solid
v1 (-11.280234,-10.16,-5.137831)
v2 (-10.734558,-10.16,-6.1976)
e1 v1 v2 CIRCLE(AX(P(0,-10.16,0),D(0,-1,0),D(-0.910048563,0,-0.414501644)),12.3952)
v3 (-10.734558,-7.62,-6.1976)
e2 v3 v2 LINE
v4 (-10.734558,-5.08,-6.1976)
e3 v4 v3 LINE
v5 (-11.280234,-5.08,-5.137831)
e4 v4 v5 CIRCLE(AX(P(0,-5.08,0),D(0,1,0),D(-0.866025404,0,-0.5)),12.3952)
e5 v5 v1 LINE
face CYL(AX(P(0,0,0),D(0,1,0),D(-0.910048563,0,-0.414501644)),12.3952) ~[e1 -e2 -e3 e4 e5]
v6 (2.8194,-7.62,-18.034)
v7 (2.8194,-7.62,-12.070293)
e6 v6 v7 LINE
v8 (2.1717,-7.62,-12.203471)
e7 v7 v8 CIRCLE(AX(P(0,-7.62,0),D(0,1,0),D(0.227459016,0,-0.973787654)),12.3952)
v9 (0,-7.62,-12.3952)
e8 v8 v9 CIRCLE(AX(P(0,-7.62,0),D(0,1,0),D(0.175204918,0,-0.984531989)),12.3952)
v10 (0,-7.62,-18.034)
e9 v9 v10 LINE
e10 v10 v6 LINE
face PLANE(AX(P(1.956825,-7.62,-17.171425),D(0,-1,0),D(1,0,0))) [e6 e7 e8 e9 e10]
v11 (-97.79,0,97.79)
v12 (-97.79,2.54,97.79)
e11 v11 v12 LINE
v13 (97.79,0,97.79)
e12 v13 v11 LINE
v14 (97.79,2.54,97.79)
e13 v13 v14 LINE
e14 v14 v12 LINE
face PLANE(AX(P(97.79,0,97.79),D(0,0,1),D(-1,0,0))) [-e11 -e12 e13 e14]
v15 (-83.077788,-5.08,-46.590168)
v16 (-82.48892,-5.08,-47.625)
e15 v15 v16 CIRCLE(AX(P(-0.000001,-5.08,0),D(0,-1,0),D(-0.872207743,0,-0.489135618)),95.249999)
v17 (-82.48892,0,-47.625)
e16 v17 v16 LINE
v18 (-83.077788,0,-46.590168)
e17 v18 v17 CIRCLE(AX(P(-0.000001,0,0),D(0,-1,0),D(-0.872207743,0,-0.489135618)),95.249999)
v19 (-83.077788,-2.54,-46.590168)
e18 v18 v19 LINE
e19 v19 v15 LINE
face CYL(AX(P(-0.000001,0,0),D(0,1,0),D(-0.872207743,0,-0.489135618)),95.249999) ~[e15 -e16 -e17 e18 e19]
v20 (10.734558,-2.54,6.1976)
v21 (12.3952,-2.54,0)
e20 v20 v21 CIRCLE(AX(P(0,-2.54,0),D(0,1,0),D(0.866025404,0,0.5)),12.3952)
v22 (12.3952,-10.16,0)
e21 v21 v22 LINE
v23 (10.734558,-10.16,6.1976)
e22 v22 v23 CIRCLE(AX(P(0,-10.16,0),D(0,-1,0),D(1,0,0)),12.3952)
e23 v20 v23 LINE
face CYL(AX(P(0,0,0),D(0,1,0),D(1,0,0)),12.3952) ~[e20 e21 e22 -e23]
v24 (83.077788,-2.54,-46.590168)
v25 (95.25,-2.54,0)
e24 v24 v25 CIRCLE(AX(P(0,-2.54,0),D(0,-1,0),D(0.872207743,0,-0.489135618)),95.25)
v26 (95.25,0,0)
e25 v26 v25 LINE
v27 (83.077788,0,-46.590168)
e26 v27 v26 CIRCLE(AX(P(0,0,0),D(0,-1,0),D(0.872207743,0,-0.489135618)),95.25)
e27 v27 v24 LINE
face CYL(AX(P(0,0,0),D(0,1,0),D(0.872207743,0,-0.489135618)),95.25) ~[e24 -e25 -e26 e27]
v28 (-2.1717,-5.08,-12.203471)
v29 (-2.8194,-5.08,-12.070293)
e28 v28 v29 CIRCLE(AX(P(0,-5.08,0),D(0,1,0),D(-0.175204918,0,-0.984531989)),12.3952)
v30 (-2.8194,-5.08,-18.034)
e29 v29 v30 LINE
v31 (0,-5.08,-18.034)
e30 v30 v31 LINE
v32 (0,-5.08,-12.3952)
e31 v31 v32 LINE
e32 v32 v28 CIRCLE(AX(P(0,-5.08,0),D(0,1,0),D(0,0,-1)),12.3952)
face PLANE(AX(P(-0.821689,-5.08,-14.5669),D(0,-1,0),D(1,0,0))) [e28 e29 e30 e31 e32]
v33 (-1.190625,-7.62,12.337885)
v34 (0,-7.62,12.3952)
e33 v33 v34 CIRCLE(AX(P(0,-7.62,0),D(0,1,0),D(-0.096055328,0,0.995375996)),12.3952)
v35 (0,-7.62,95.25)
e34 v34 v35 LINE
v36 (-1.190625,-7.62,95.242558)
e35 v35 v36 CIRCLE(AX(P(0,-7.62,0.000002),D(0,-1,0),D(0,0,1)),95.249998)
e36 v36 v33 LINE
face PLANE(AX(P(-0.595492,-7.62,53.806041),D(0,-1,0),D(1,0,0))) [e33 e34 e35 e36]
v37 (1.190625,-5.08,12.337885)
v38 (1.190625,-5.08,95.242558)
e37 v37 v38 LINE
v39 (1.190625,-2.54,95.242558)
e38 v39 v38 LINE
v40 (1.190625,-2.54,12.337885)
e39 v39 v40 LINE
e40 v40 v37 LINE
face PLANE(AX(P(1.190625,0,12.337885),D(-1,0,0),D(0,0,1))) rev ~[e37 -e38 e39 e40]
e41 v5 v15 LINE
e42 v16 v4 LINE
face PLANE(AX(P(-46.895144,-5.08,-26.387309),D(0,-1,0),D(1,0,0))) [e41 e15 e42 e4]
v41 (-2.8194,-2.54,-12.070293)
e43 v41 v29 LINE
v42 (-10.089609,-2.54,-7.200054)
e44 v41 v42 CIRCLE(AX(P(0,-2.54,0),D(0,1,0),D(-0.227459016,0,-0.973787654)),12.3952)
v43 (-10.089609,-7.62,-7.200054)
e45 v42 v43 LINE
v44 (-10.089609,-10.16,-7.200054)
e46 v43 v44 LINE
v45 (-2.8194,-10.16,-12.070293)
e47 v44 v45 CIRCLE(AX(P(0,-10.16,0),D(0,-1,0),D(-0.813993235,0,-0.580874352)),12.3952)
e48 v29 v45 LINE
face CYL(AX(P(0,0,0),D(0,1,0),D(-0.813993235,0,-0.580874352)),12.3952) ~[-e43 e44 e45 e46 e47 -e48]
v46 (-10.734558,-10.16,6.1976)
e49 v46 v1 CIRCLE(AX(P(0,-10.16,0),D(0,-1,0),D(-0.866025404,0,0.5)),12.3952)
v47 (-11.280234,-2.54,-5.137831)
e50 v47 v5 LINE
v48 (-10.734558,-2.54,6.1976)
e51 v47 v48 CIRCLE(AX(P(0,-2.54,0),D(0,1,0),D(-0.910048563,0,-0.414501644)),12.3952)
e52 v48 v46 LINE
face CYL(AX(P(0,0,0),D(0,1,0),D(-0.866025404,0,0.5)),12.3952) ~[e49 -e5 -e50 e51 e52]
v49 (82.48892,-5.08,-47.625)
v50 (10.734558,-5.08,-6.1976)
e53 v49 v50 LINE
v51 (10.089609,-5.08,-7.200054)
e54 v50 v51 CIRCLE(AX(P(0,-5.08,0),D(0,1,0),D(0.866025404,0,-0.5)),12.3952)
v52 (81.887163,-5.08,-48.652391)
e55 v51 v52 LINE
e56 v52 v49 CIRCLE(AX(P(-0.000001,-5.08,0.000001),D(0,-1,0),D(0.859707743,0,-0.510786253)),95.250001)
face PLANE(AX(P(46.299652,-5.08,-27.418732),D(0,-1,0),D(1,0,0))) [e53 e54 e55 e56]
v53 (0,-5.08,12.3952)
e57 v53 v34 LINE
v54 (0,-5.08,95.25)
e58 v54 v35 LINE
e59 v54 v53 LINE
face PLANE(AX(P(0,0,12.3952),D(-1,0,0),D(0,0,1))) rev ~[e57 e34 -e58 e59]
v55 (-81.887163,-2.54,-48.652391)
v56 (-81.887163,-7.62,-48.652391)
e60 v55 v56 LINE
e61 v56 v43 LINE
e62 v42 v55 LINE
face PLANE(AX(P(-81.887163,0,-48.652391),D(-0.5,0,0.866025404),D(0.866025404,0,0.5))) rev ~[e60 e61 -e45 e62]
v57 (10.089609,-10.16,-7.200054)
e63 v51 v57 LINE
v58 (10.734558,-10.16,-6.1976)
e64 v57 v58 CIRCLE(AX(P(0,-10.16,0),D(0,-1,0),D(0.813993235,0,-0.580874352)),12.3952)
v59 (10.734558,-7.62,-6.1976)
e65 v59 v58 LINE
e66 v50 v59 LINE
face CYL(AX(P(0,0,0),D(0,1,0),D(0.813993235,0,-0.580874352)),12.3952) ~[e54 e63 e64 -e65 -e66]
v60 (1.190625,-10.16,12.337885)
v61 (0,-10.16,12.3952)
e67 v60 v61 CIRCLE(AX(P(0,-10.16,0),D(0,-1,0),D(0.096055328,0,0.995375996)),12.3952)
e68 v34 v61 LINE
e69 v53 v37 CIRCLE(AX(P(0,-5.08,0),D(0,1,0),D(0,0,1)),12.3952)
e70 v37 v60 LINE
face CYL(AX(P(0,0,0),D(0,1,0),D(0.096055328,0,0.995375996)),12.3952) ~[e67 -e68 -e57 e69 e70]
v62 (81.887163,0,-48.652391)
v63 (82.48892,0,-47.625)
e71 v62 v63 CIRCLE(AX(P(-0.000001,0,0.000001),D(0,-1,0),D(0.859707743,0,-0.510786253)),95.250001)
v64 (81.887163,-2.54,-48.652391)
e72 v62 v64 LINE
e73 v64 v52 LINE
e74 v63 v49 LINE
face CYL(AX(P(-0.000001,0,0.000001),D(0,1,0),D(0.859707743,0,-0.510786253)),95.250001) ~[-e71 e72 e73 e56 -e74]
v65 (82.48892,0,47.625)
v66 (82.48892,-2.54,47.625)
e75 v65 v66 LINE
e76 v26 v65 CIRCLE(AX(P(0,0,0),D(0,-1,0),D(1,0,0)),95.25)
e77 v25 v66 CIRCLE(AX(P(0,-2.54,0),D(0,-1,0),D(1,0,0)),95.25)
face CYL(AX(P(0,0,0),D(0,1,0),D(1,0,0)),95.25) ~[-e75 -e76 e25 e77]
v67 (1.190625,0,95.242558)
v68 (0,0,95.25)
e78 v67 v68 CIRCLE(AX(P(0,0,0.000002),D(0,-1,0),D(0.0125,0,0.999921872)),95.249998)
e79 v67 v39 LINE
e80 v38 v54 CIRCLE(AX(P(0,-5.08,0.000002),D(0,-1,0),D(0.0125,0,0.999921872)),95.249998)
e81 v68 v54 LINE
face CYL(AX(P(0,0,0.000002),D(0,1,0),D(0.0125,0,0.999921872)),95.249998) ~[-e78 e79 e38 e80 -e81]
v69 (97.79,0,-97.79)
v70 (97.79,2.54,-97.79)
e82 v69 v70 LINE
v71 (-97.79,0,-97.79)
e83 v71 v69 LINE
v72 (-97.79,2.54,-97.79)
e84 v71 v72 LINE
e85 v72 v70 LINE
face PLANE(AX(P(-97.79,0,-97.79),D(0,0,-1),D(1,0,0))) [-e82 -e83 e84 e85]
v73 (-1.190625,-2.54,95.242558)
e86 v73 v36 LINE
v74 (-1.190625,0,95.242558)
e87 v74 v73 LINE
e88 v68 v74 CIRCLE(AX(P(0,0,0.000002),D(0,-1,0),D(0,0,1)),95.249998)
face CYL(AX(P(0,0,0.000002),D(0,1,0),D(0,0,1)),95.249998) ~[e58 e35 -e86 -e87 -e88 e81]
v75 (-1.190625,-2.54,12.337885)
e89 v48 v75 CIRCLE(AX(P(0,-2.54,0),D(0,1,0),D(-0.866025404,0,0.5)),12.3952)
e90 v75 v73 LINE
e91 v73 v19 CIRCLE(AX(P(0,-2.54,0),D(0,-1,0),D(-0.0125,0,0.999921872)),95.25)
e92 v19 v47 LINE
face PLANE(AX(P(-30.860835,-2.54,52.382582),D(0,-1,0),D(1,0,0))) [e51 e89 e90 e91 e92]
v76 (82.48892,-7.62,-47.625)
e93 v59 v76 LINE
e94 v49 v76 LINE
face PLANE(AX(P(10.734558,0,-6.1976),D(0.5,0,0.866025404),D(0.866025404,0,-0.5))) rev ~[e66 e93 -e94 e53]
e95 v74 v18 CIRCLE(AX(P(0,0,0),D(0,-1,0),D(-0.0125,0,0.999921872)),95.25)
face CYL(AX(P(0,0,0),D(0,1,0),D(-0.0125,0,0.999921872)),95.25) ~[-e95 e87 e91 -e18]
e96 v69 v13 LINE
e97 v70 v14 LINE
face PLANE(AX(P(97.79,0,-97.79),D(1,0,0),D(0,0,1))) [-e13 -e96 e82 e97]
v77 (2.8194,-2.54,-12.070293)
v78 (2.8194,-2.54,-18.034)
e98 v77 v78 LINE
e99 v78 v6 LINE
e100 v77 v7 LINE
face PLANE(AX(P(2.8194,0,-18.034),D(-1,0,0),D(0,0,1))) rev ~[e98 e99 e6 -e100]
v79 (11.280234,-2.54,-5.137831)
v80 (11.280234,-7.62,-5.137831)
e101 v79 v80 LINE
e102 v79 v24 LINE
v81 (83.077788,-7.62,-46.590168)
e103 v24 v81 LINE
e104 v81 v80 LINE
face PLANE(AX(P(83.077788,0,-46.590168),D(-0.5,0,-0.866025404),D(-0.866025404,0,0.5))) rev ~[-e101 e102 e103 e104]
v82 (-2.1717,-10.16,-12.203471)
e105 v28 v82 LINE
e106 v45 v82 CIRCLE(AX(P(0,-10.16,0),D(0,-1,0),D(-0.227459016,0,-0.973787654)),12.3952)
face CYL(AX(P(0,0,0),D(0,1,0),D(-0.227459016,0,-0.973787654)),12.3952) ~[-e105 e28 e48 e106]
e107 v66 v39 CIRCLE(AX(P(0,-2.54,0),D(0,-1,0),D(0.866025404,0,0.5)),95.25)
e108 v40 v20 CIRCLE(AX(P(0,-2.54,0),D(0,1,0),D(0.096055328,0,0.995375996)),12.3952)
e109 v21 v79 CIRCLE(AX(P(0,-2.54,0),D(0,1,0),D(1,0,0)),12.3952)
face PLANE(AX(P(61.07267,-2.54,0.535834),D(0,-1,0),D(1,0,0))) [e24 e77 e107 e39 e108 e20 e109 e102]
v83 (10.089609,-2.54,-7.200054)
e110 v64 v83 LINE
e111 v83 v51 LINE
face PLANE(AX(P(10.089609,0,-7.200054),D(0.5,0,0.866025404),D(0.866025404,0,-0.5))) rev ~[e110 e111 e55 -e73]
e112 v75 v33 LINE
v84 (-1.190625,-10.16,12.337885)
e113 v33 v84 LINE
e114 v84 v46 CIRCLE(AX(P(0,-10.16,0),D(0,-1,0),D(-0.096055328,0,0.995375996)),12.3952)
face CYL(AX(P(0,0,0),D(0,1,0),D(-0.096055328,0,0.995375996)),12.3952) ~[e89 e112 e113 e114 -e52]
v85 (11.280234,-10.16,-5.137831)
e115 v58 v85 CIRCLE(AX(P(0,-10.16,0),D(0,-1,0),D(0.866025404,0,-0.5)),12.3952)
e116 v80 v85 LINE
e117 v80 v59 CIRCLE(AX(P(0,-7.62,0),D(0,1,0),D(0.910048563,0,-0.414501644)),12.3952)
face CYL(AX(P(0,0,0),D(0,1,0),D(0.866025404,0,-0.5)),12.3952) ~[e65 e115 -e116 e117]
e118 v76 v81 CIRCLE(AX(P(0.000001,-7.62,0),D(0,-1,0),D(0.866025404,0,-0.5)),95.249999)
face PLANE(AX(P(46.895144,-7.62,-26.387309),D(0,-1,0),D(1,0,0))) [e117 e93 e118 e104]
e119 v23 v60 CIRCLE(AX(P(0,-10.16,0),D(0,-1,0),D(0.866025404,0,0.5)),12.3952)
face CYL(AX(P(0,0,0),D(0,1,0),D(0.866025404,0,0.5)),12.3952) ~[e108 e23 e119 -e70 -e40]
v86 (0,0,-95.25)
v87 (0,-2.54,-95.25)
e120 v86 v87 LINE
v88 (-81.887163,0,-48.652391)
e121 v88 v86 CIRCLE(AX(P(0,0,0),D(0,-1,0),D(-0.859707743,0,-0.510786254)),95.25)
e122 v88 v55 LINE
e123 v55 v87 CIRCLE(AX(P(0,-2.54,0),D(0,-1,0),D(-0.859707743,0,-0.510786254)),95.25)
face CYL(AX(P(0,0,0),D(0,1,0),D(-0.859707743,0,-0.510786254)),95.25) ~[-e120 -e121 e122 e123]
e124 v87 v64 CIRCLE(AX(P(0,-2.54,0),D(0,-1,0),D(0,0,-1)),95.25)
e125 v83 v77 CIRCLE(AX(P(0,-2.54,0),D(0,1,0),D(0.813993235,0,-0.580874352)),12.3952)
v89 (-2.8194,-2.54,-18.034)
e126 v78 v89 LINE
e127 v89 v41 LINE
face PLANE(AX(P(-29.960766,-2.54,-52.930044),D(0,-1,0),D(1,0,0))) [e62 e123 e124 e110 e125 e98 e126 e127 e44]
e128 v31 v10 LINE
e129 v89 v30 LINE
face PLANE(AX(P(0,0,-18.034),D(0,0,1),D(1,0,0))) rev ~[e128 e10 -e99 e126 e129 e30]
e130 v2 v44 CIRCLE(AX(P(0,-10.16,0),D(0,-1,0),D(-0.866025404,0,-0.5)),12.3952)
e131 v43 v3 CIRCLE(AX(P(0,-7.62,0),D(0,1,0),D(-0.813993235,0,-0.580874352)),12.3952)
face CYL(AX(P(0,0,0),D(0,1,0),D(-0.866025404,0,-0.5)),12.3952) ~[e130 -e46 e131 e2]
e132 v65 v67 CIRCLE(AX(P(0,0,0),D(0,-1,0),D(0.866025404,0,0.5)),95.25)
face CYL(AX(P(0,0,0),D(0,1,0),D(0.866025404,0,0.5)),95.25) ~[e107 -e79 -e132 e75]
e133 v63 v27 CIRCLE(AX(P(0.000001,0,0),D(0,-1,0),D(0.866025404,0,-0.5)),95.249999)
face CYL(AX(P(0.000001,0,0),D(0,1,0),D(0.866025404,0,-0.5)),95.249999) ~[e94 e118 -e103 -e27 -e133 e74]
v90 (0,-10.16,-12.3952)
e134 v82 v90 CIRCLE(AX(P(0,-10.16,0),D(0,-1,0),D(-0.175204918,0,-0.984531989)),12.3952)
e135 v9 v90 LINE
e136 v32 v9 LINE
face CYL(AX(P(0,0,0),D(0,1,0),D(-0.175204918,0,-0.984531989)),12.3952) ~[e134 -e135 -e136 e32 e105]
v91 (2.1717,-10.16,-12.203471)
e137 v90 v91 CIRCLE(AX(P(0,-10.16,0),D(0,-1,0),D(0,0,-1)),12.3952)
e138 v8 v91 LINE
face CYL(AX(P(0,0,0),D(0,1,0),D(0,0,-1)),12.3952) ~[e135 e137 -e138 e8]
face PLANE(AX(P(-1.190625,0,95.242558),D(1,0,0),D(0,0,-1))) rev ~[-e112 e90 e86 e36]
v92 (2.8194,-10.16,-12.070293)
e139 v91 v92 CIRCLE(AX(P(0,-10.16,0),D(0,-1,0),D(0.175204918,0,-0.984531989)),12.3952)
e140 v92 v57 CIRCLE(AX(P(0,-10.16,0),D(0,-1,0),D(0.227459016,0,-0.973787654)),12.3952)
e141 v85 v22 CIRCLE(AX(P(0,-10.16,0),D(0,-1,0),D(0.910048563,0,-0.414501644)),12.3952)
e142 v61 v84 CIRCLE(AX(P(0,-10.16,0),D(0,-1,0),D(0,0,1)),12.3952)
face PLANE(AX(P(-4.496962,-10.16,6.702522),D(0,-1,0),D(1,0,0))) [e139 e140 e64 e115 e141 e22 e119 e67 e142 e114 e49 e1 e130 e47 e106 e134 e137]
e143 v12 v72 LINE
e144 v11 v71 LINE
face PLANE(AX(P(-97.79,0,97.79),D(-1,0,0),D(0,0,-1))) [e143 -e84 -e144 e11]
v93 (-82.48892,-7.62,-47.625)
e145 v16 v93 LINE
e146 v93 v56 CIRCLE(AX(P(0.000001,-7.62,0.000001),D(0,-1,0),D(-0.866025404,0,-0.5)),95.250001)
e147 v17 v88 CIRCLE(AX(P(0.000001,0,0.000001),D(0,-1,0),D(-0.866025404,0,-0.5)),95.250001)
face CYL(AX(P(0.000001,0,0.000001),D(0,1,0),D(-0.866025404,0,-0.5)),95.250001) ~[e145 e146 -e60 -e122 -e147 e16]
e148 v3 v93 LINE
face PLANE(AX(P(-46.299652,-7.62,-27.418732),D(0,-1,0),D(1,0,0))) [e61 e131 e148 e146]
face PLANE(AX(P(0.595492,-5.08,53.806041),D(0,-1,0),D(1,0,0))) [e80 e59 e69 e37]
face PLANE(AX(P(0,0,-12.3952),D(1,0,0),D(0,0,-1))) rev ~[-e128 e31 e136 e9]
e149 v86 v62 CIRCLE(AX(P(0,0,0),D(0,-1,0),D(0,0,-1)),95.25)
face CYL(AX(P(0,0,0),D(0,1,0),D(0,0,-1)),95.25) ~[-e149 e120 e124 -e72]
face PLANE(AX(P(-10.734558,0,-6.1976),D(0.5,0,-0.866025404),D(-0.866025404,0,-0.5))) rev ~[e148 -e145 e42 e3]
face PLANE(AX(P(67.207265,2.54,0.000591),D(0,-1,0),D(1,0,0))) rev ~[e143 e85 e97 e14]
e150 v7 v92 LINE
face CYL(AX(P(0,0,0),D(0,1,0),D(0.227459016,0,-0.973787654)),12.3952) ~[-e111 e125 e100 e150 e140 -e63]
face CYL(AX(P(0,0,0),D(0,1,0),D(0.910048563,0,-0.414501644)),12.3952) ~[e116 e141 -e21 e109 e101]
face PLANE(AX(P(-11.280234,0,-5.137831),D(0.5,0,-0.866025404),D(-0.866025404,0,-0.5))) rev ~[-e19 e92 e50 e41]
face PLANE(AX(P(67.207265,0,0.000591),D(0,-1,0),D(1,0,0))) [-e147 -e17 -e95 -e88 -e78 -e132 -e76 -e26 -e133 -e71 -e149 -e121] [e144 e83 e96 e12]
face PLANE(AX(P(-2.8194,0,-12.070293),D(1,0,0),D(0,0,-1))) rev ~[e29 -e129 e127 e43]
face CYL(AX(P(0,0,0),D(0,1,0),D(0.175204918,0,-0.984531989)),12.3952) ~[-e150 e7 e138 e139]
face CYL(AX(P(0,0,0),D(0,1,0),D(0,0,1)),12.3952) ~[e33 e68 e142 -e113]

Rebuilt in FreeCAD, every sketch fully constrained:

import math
import FreeCAD as App
import Part
import Sketcher
from FreeCAD import Vector
Q = App.Units.Quantity


def add_polygon(sketch, points):
    """Adds a closed chain of lines whose ends are joined by coincident constraints."""
    first, n = sketch.GeometryCount, len(points)
    for a, b in zip(points, points[1:] + points[:1]):
        sketch.addGeometry(Part.LineSegment(App.Vector(*a, 0), App.Vector(*b, 0)), False)
    for i in range(n):
        sketch.addConstraint(Sketcher.Constraint("Coincident", first + i, 2, first + (i + 1) % n, 1))

doc = App.newDocument("Part")
body = doc.addObject("PartDesign::Body", "Body")

sketch1 = body.newObject("Sketcher::SketchObject", "Sketch")
sketch1.AttachmentSupport = (doc.getObject("XZ_Plane"), [""])
sketch1.MapMode = "FlatFace"
add_polygon(sketch1, [(98, -98), (98, 98), (-98, 98), (-98, -98)])
sketch1.addConstraint([
    Sketcher.Constraint("Vertical", 0),
    Sketcher.Constraint("Horizontal", 1),
    Sketcher.Constraint("Vertical", 2),
    Sketcher.Constraint("Horizontal", 3),
    Sketcher.Constraint("Symmetric", 0, 2, 2, 2, -1, 1),
    Sketcher.Constraint("Equal", 3, 0),
    Sketcher.Constraint("DistanceX", 1, 2, 1, 1, Q("7.7 in")),
])
pad1 = body.newObject("PartDesign::Pad", "Pad")
pad1.Profile = sketch1
pad1.Length = Q("0.1 in")
pad1.Reversed = True

sketch2 = body.newObject("Sketcher::SketchObject", "Sketch001")
sketch2.AttachmentSupport = (doc.getObject("XZ_Plane"), [""])
sketch2.MapMode = "FlatFace"
sketch2.addGeometry([
    Part.LineSegment(Vector(1.2, 12.3, 0), Vector(1.2, 95.2, 0)),
    Part.ArcOfCircle(Part.Circle(Vector(0, 0, 0), Vector(0, 0, 1), 95.2), math.radians(89.28), math.radians(90)),
    Part.LineSegment(Vector(0, 95.2, 0), Vector(0, 12.4, 0)),
    Part.ArcOfCircle(Part.Circle(Vector(0, 0, 0), Vector(0, 0, 1), 12.4), math.radians(84.49), math.radians(90)),
    Part.LineSegment(Vector(-11.3, -5.1, 0), Vector(-83.1, -46.6, 0)),
    Part.ArcOfCircle(Part.Circle(Vector(0, 0, 0), Vector(0, 0, 1), 95.2), math.radians(-150.72), math.radians(-150)),
    Part.LineSegment(Vector(-82.5, -47.6, 0), Vector(-10.7, -6.2, 0)),
    Part.ArcOfCircle(Part.Circle(Vector(0, 0, 0), Vector(0, 0, 1), 12.4), math.radians(-155.51), math.radians(-150)),
    Part.ArcOfCircle(Part.Circle(Vector(0, 0, 0), Vector(0, 0, 1), 95.3), math.radians(-30.72), math.radians(-30)),
    Part.LineSegment(Vector(82.5, -47.6, 0), Vector(10.7, -6.2, 0)),
    Part.ArcOfCircle(Part.Circle(Vector(0, 0, 0), Vector(0, 0, 1), 12.4), math.radians(-35.51), math.radians(-30)),
    Part.LineSegment(Vector(10.1, -7.2, 0), Vector(81.9, -48.7, 0)),
    Part.LineSegment(Vector(0, -18, 0), Vector(0, -12.4, 0)),
    Part.ArcOfCircle(Part.Circle(Vector(0, 0, 0), Vector(0, 0, 1), 12.4), math.radians(-100.09), math.radians(-90)),
    Part.ArcOfCircle(Part.Circle(Vector(0, 0, 0), Vector(0, 0, 1), 12.4), math.radians(-103.15), math.radians(-100.09)),
    Part.LineSegment(Vector(-2.8, -12.1, 0), Vector(-2.8, -18, 0)),
    Part.LineSegment(Vector(-2.8, -18, 0), Vector(0, -18, 0)),
], False)
sketch2.addConstraint([
    Sketcher.Constraint("Coincident", 0, 2, 1, 1),
    Sketcher.Constraint("Coincident", 1, 2, 2, 1),
    Sketcher.Constraint("Coincident", 2, 2, 3, 2),
    Sketcher.Constraint("Coincident", 3, 1, 0, 1),
    Sketcher.Constraint("Coincident", 4, 2, 5, 1),
    Sketcher.Constraint("Coincident", 5, 2, 6, 1),
    Sketcher.Constraint("Coincident", 6, 2, 7, 2),
    Sketcher.Constraint("Coincident", 7, 1, 4, 1),
    Sketcher.Constraint("Coincident", 8, 2, 9, 1),
    Sketcher.Constraint("Coincident", 9, 2, 10, 2),
    Sketcher.Constraint("Coincident", 10, 1, 11, 1),
    Sketcher.Constraint("Coincident", 11, 2, 8, 1),
    Sketcher.Constraint("Coincident", 12, 2, 13, 2),
    Sketcher.Constraint("Tangent", 13, 1, 14, 2),
    Sketcher.Constraint("Coincident", 14, 1, 15, 1),
    Sketcher.Constraint("Coincident", 15, 2, 16, 1),
    Sketcher.Constraint("Coincident", 16, 2, 12, 1),
    Sketcher.Constraint("Vertical", 0),
    Sketcher.Constraint("Vertical", 2),
    Sketcher.Constraint("Vertical", 12),
    Sketcher.Constraint("Vertical", 15),
    Sketcher.Constraint("Horizontal", 16),
    Sketcher.Constraint("Coincident", 1, 3, -1, 1),
    Sketcher.Constraint("Coincident", 3, 3, -1, 1),
    Sketcher.Constraint("Coincident", 5, 3, -1, 1),
    Sketcher.Constraint("Coincident", 7, 3, -1, 1),
    Sketcher.Constraint("Coincident", 8, 3, -1, 1),
    Sketcher.Constraint("Coincident", 10, 3, -1, 1),
    Sketcher.Constraint("Coincident", 13, 3, -1, 1),
    Sketcher.Constraint("Equal", 1, 5),
    Sketcher.Constraint("Equal", 3, 7),
    Sketcher.Constraint("Equal", 7, 10),
    Sketcher.Constraint("Equal", 10, 13),
    Sketcher.Constraint("Equal", 13, 14),
    Sketcher.Constraint("Symmetric", 5, 2, 8, 2, -2),
    Sketcher.Constraint("PointOnObject", 1, 2, -2),
    Sketcher.Constraint("PointOnObject", 12, 2, -2),
    Sketcher.Constraint("Parallel", 4, 6),
    Sketcher.Constraint("Parallel", 9, 11),
    Sketcher.Constraint("Horizontal", 6, 2, 9, 2),
    Sketcher.Constraint("Equal", 4, 11),
    Sketcher.Constraint("Radius", 1, Q("3.7499999 in")),
    Sketcher.Constraint("Angle", 4, Q("-150 deg")),
    Sketcher.Constraint("Radius", 3, Q("0.488 in")),
    Sketcher.Constraint("DistanceX", 16, 1, 16, 2, Q("0.111 in")),
    Sketcher.Constraint("DistanceY", 12, 1, 12, 2, Q("0.222 in")),
    Sketcher.Constraint("DistanceX", -1, 1, 0, 2, Q("0.046875 in")),
    Sketcher.Constraint("DistanceY", 5, 2, -1, 1, Q("1.875 in")),
    Sketcher.Constraint("DistanceX", 13, 1, -1, 1, Q("0.0855 in")),
    Sketcher.Constraint("DistanceY", 7, 1, -1, 1, Q("5.137831 mm")),
])
pad2 = body.newObject("PartDesign::Pad", "Pad001")
pad2.Profile = sketch2
pad2.Length = Q("0.2 in")

sketch3 = body.newObject("Sketcher::SketchObject", "Sketch002")
sketch3.AttachmentSupport = (doc.getObject("XZ_Plane"), [""])
sketch3.MapMode = "FlatFace"
sketch3.addGeometry([
    Part.ArcOfCircle(Part.Circle(Vector(0, 0, 0), Vector(0, 0, 1), 95), math.radians(-149), math.radians(-90)),
    Part.ArcOfCircle(Part.Circle(Vector(0, 0, 0), Vector(0, 0, 1), 95), math.radians(-90), math.radians(-31)),
    Part.LineSegment(Vector(82, -49, 0), Vector(10, -7, 0)),
    Part.ArcOfCircle(Part.Circle(Vector(0, 0, 0), Vector(0, 0, 1), 12), math.radians(-77), math.radians(-36)),
    Part.LineSegment(Vector(3, -12, 0), Vector(3, -18, 0)),
    Part.LineSegment(Vector(3, -18, 0), Vector(-3, -18, 0)),
    Part.LineSegment(Vector(-3, -18, 0), Vector(-3, -12, 0)),
    Part.ArcOfCircle(Part.Circle(Vector(0, 0, 0), Vector(0, 0, 1), 12), math.radians(-144), math.radians(-103)),
    Part.LineSegment(Vector(-10, -7, 0), Vector(-82, -49, 0)),
    Part.ArcOfCircle(Part.Circle(Vector(0, 0, 0), Vector(0, 0, 1), 95), math.radians(-29), math.radians(0)),
    Part.ArcOfCircle(Part.Circle(Vector(0, 0, 0), Vector(0, 0, 1), 95), math.radians(0), math.radians(30)),
    Part.ArcOfCircle(Part.Circle(Vector(0, 0, 0), Vector(0, 0, 1), 95), math.radians(30), math.radians(89)),
    Part.LineSegment(Vector(1, 95, 0), Vector(1, 12, 0)),
    Part.ArcOfCircle(Part.Circle(Vector(0, 0, 0), Vector(0, 0, 1), 12), math.radians(30), math.radians(84)),
    Part.ArcOfCircle(Part.Circle(Vector(0, 0, 0), Vector(0, 0, 1), 12), math.radians(0), math.radians(30)),
    Part.ArcOfCircle(Part.Circle(Vector(0, 0, 0), Vector(0, 0, 1), 12), math.radians(-24), math.radians(0)),
    Part.LineSegment(Vector(11, -5, 0), Vector(83, -47, 0)),
    Part.LineSegment(Vector(-1, 12, 0), Vector(-1, 95, 0)),
    Part.ArcOfCircle(Part.Circle(Vector(0, 0, 0), Vector(0, 0, 1), 95), math.radians(91), math.radians(209)),
    Part.LineSegment(Vector(-83, -47, 0), Vector(-11, -5, 0)),
    Part.ArcOfCircle(Part.Circle(Vector(0, 0, 0), Vector(0, 0, 1), 12), math.radians(150), math.radians(204)),
    Part.ArcOfCircle(Part.Circle(Vector(0, 0, 0), Vector(0, 0, 1), 12), math.radians(96), math.radians(150)),
], False)
sketch3.addConstraint([
    Sketcher.Constraint("Tangent", 0, 2, 1, 1),
    Sketcher.Constraint("Coincident", 1, 2, 2, 1),
    Sketcher.Constraint("Coincident", 2, 2, 3, 2),
    Sketcher.Constraint("Coincident", 3, 1, 4, 1),
    Sketcher.Constraint("Coincident", 4, 2, 5, 1),
    Sketcher.Constraint("Coincident", 5, 2, 6, 1),
    Sketcher.Constraint("Coincident", 6, 2, 7, 2),
    Sketcher.Constraint("Coincident", 7, 1, 8, 1),
    Sketcher.Constraint("Coincident", 8, 2, 0, 1),
    Sketcher.Constraint("Tangent", 9, 2, 10, 1),
    Sketcher.Constraint("Tangent", 10, 2, 11, 1),
    Sketcher.Constraint("Coincident", 11, 2, 12, 1),
    Sketcher.Constraint("Coincident", 12, 2, 13, 2),
    Sketcher.Constraint("Tangent", 13, 1, 14, 2),
    Sketcher.Constraint("Tangent", 14, 1, 15, 2),
    Sketcher.Constraint("Coincident", 15, 1, 16, 1),
    Sketcher.Constraint("Coincident", 16, 2, 9, 1),
    Sketcher.Constraint("Coincident", 17, 2, 18, 1),
    Sketcher.Constraint("Coincident", 18, 2, 19, 1),
    Sketcher.Constraint("Coincident", 19, 2, 20, 2),
    Sketcher.Constraint("Tangent", 20, 1, 21, 2),
    Sketcher.Constraint("Coincident", 21, 1, 17, 1),
    Sketcher.Constraint("Vertical", 4),
    Sketcher.Constraint("Horizontal", 5),
    Sketcher.Constraint("Vertical", 6),
    Sketcher.Constraint("Vertical", 12),
    Sketcher.Constraint("Vertical", 17),
    Sketcher.Constraint("Coincident", 0, 3, -1, 1),
    Sketcher.Constraint("Coincident", 3, 3, -1, 1),
    Sketcher.Constraint("Coincident", 7, 3, -1, 1),
    Sketcher.Constraint("Coincident", 9, 3, -1, 1),
    Sketcher.Constraint("Coincident", 11, 3, -1, 1),
    Sketcher.Constraint("Coincident", 13, 3, -1, 1),
    Sketcher.Constraint("Coincident", 15, 3, -1, 1),
    Sketcher.Constraint("Coincident", 18, 3, -1, 1),
    Sketcher.Constraint("Coincident", 20, 3, -1, 1),
    Sketcher.Constraint("Equal", 0, 1),
    Sketcher.Constraint("Equal", 3, 7),
    Sketcher.Constraint("Equal", 1, 9),
    Sketcher.Constraint("Equal", 7, 13),
    Sketcher.Constraint("Equal", 11, 18),
    Sketcher.Constraint("Equal", 15, 20),
    Sketcher.Constraint("Equal", 20, 21),
    Sketcher.Constraint("PointOnObject", 0, 2, -2),
    Sketcher.Constraint("PointOnObject", 9, 2, -1),
    Sketcher.Constraint("PointOnObject", 14, 1, -1),
    Sketcher.Constraint("Parallel", 2, 16),
    Sketcher.Constraint("Parallel", 8, 19),
    Sketcher.Constraint("Horizontal", 3, 1, 6, 2),
    Sketcher.Constraint("Horizontal", 2, 2, 7, 1),
    Sketcher.Constraint("Horizontal", 1, 2, 8, 2),
    Sketcher.Constraint("Horizontal", 11, 2, 17, 2),
    Sketcher.Constraint("Horizontal", 16, 2, 18, 2),
    Sketcher.Constraint("Horizontal", 13, 1, 20, 1),
    Sketcher.Constraint("Equal", 8, 16),
    Sketcher.Constraint("Radius", 0, Q("3.75 in")),
    Sketcher.Constraint("Angle", 2, Q("150 deg")),
    Sketcher.Constraint("Radius", 3, Q("0.488 in")),
    Sketcher.Constraint("DistanceX", 5, 2, 5, 1, Q("0.222 in")),
    Sketcher.Constraint("DistanceY", 4, 2, -1, 1, Q("0.71 in")),
    Sketcher.Constraint("DistanceY", -1, 1, 10, 2, Q("1.875 in")),
    Sketcher.Constraint("DistanceX", -1, 1, 11, 2, Q("0.046875 in")),
    Sketcher.Constraint("DistanceY", -1, 1, 13, 1, Q("0.244 in")),
    Sketcher.Constraint("DistanceX", 2, 2, 15, 1, Q("0.046875 in")),
])
pad3 = body.newObject("PartDesign::Pad", "Pad002")
pad3.Profile = sketch3
pad3.Length = Q("0.1 in")

sketch4 = body.newObject("Sketcher::SketchObject", "Sketch003")
sketch4.AttachmentSupport = (doc.getObject("XZ_Plane"), [""])
sketch4.MapMode = "FlatFace"
sketch4.addGeometry([
    Part.ArcOfCircle(Part.Circle(Vector(0, 0, 0), Vector(0, 0, 1), 95.3), math.radians(-150), math.radians(-149.28)),
    Part.LineSegment(Vector(-81.9, -48.7, 0), Vector(-10.1, -7.2, 0)),
    Part.ArcOfCircle(Part.Circle(Vector(0, 0, 0), Vector(0, 0, 1), 12.4), math.radians(-150), math.radians(-144.49)),
    Part.LineSegment(Vector(-10.7, -6.2, 0), Vector(-82.5, -47.6, 0)),
    Part.ArcOfCircle(Part.Circle(Vector(0, 0, 0), Vector(0, 0, 1), 95.2), math.radians(-30), math.radians(-29.28)),
    Part.LineSegment(Vector(83.1, -46.6, 0), Vector(11.3, -5.1, 0)),
    Part.ArcOfCircle(Part.Circle(Vector(0, 0, 0), Vector(0, 0, 1), 12.4), math.radians(-30), math.radians(-24.49)),
    Part.LineSegment(Vector(10.7, -6.2, 0), Vector(82.5, -47.6, 0)),
    Part.LineSegment(Vector(0, 12.4, 0), Vector(0, 95.2, 0)),
    Part.ArcOfCircle(Part.Circle(Vector(0, 0, 0), Vector(0, 0, 1), 95.2), math.radians(90), math.radians(90.72)),
    Part.LineSegment(Vector(-1.2, 95.2, 0), Vector(-1.2, 12.3, 0)),
    Part.ArcOfCircle(Part.Circle(Vector(0, 0, 0), Vector(0, 0, 1), 12.4), math.radians(90), math.radians(95.51)),
    Part.LineSegment(Vector(0, -18, 0), Vector(2.8, -18, 0)),
    Part.LineSegment(Vector(2.8, -18, 0), Vector(2.8, -12.1, 0)),
    Part.ArcOfCircle(Part.Circle(Vector(0, 0, 0), Vector(0, 0, 1), 12.4), math.radians(-79.91), math.radians(-76.85)),
    Part.ArcOfCircle(Part.Circle(Vector(0, 0, 0), Vector(0, 0, 1), 12.4), math.radians(-90), math.radians(-79.91)),
    Part.LineSegment(Vector(0, -12.4, 0), Vector(0, -18, 0)),
], False)
sketch4.addConstraint([
    Sketcher.Constraint("Coincident", 0, 2, 1, 1),
    Sketcher.Constraint("Coincident", 1, 2, 2, 2),
    Sketcher.Constraint("Coincident", 2, 1, 3, 1),
    Sketcher.Constraint("Coincident", 3, 2, 0, 1),
    Sketcher.Constraint("Coincident", 4, 2, 5, 1),
    Sketcher.Constraint("Coincident", 5, 2, 6, 2),
    Sketcher.Constraint("Coincident", 6, 1, 7, 1),
    Sketcher.Constraint("Coincident", 7, 2, 4, 1),
    Sketcher.Constraint("Coincident", 8, 2, 9, 1),
    Sketcher.Constraint("Coincident", 9, 2, 10, 1),
    Sketcher.Constraint("Coincident", 10, 2, 11, 2),
    Sketcher.Constraint("Coincident", 11, 1, 8, 1),
    Sketcher.Constraint("Coincident", 12, 2, 13, 1),
    Sketcher.Constraint("Coincident", 13, 2, 14, 2),
    Sketcher.Constraint("Tangent", 14, 1, 15, 2),
    Sketcher.Constraint("Coincident", 15, 1, 16, 1),
    Sketcher.Constraint("Coincident", 16, 2, 12, 1),
    Sketcher.Constraint("Vertical", 8),
    Sketcher.Constraint("Vertical", 10),
    Sketcher.Constraint("Horizontal", 12),
    Sketcher.Constraint("Vertical", 13),
    Sketcher.Constraint("Vertical", 16),
    Sketcher.Constraint("Coincident", 0, 3, -1, 1),
    Sketcher.Constraint("Coincident", 2, 3, -1, 1),
    Sketcher.Constraint("Coincident", 4, 3, -1, 1),
    Sketcher.Constraint("Coincident", 6, 3, -1, 1),
    Sketcher.Constraint("Coincident", 9, 3, -1, 1),
    Sketcher.Constraint("Coincident", 11, 3, -1, 1),
    Sketcher.Constraint("Coincident", 14, 3, -1, 1),
    Sketcher.Constraint("Equal", 2, 6),
    Sketcher.Constraint("Equal", 4, 9),
    Sketcher.Constraint("Equal", 6, 11),
    Sketcher.Constraint("Equal", 11, 14),
    Sketcher.Constraint("Equal", 14, 15),
    Sketcher.Constraint("Symmetric", 3, 2, 7, 2, -2),
    Sketcher.Constraint("PointOnObject", 8, 2, -2),
    Sketcher.Constraint("PointOnObject", 15, 1, -2),
    Sketcher.Constraint("Parallel", 1, 3),
    Sketcher.Constraint("Parallel", 5, 7),
    Sketcher.Constraint("Horizontal", 2, 1, 6, 1),
    Sketcher.Constraint("Equal", 1, 5),
    Sketcher.Constraint("Radius", 0, Q("3.7500001 in")),
    Sketcher.Constraint("Angle", 1, Q("30 deg")),
    Sketcher.Constraint("Radius", 2, Q("0.488 in")),
    Sketcher.Constraint("DistanceX", 12, 1, 12, 2, Q("0.111 in")),
    Sketcher.Constraint("DistanceY", 16, 2, 16, 1, Q("0.222 in")),
    Sketcher.Constraint("DistanceY", 2, 1, -1, 1, Q("0.244 in")),
    Sketcher.Constraint("DistanceX", 9, 2, -1, 1, Q("0.046875 in")),
    Sketcher.Constraint("DistanceX", -1, 1, 14, 1, Q("0.0855 in")),
    Sketcher.Constraint("DistanceY", 0, 2, -1, 1, Q("48.652391 mm")),
])
pad4 = body.newObject("PartDesign::Pad", "Pad003")
pad4.Profile = sketch4
pad4.Length = Q("0.3 in")

sketch5 = body.newObject("Sketcher::SketchObject", "Sketch004")
sketch5.AttachmentSupport = (doc.getObject("XZ_Plane"), [""])
sketch5.MapMode = "FlatFace"
sketch5.addGeometry([
    Part.ArcOfCircle(Part.Circle(Vector(0, 0, 0), Vector(0, 0, 1), 12.4), math.radians(96), math.radians(150)),
    Part.ArcOfCircle(Part.Circle(Vector(0, 0, 0), Vector(0, 0, 1), 12.4), math.radians(150), math.radians(204)),
    Part.ArcOfCircle(Part.Circle(Vector(0, 0, 0), Vector(0, 0, 1), 12.4), math.radians(-155.51), math.radians(-150)),
    Part.ArcOfCircle(Part.Circle(Vector(0, 0, 0), Vector(0, 0, 1), 12.4), math.radians(-150), math.radians(-144.49)),
    Part.ArcOfCircle(Part.Circle(Vector(0, 0, 0), Vector(0, 0, 1), 12.4), math.radians(-144), math.radians(-103)),
    Part.ArcOfCircle(Part.Circle(Vector(0, 0, 0), Vector(0, 0, 1), 12.4), math.radians(-103.15), math.radians(-100.09)),
    Part.ArcOfCircle(Part.Circle(Vector(0, 0, 0), Vector(0, 0, 1), 12.4), math.radians(-100.09), math.radians(-90)),
    Part.ArcOfCircle(Part.Circle(Vector(0, 0, 0), Vector(0, 0, 1), 12.4), math.radians(-90), math.radians(-79.91)),
    Part.ArcOfCircle(Part.Circle(Vector(0, 0, 0), Vector(0, 0, 1), 12.4), math.radians(-79.91), math.radians(-76.85)),
    Part.ArcOfCircle(Part.Circle(Vector(0, 0, 0), Vector(0, 0, 1), 12.4), math.radians(-77), math.radians(-36)),
    Part.ArcOfCircle(Part.Circle(Vector(0, 0, 0), Vector(0, 0, 1), 12.4), math.radians(-35.51), math.radians(-30)),
    Part.ArcOfCircle(Part.Circle(Vector(0, 0, 0), Vector(0, 0, 1), 12.4), math.radians(-30), math.radians(-24.49)),
    Part.ArcOfCircle(Part.Circle(Vector(0, 0, 0), Vector(0, 0, 1), 12.4), math.radians(-24), math.radians(0)),
    Part.ArcOfCircle(Part.Circle(Vector(0, 0, 0), Vector(0, 0, 1), 12.4), math.radians(0), math.radians(30)),
    Part.ArcOfCircle(Part.Circle(Vector(0, 0, 0), Vector(0, 0, 1), 12.4), math.radians(30), math.radians(84)),
    Part.ArcOfCircle(Part.Circle(Vector(0, 0, 0), Vector(0, 0, 1), 12.4), math.radians(84.49), math.radians(90)),
    Part.ArcOfCircle(Part.Circle(Vector(0, 0, 0), Vector(0, 0, 1), 12.4), math.radians(90), math.radians(95.51)),
], False)
sketch5.addConstraint([
    Sketcher.Constraint("Tangent", 0, 2, 1, 1),
    Sketcher.Constraint("Tangent", 1, 2, 2, 1),
    Sketcher.Constraint("Tangent", 2, 2, 3, 1),
    Sketcher.Constraint("Tangent", 3, 2, 4, 1),
    Sketcher.Constraint("Tangent", 4, 2, 5, 1),
    Sketcher.Constraint("Tangent", 5, 2, 6, 1),
    Sketcher.Constraint("Tangent", 6, 2, 7, 1),
    Sketcher.Constraint("Tangent", 7, 2, 8, 1),
    Sketcher.Constraint("Tangent", 8, 2, 9, 1),
    Sketcher.Constraint("Tangent", 9, 2, 10, 1),
    Sketcher.Constraint("Tangent", 10, 2, 11, 1),
    Sketcher.Constraint("Tangent", 11, 2, 12, 1),
    Sketcher.Constraint("Tangent", 12, 2, 13, 1),
    Sketcher.Constraint("Tangent", 13, 2, 14, 1),
    Sketcher.Constraint("Tangent", 14, 2, 15, 1),
    Sketcher.Constraint("Tangent", 15, 2, 16, 1),
    Sketcher.Constraint("Tangent", 16, 2, 0, 1),
    Sketcher.Constraint("Coincident", 0, 3, -1, 1),
    Sketcher.Constraint("Coincident", 2, 3, -1, 1),
    Sketcher.Constraint("Coincident", 4, 3, -1, 1),
    Sketcher.Constraint("Coincident", 6, 3, -1, 1),
    Sketcher.Constraint("Coincident", 8, 3, -1, 1),
    Sketcher.Constraint("Coincident", 10, 3, -1, 1),
    Sketcher.Constraint("Coincident", 12, 3, -1, 1),
    Sketcher.Constraint("Coincident", 14, 3, -1, 1),
    Sketcher.Constraint("PointOnObject", 6, 2, -2),
    Sketcher.Constraint("PointOnObject", 12, 2, -1),
    Sketcher.Constraint("PointOnObject", 15, 2, -2),
    Sketcher.Constraint("Horizontal", 5, 2, 7, 2),
    Sketcher.Constraint("Horizontal", 4, 2, 8, 2),
    Sketcher.Constraint("Horizontal", 3, 2, 9, 2),
    Sketcher.Constraint("Horizontal", 2, 2, 10, 2),
    Sketcher.Constraint("Horizontal", 1, 2, 11, 2),
    Sketcher.Constraint("Horizontal", 0, 2, 13, 2),
    Sketcher.Constraint("Horizontal", 14, 2, 16, 2),
    Sketcher.Constraint("Vertical", 0, 2, 2, 2),
    Sketcher.Constraint("Radius", 0, Q("0.488 in")),
    Sketcher.Constraint("DistanceY", -1, 1, 0, 2, Q("0.244 in")),
    Sketcher.Constraint("DistanceX", 4, 2, -1, 1, Q("0.111 in")),
    Sketcher.Constraint("DistanceX", -1, 1, 14, 2, Q("0.046875 in")),
    Sketcher.Constraint("DistanceX", 1, 2, 3, 2, Q("0.046875 in")),
    Sketcher.Constraint("DistanceX", 5, 2, 7, 2, Q("0.171 in")),
    Sketcher.Constraint("DistanceY", 1, 2, -1, 1, Q("5.137831 mm")),
])
pad5 = body.newObject("PartDesign::Pad", "Pad004")
pad5.Profile = sketch5
pad5.Length = Q("0.4 in")

doc.recompute()
